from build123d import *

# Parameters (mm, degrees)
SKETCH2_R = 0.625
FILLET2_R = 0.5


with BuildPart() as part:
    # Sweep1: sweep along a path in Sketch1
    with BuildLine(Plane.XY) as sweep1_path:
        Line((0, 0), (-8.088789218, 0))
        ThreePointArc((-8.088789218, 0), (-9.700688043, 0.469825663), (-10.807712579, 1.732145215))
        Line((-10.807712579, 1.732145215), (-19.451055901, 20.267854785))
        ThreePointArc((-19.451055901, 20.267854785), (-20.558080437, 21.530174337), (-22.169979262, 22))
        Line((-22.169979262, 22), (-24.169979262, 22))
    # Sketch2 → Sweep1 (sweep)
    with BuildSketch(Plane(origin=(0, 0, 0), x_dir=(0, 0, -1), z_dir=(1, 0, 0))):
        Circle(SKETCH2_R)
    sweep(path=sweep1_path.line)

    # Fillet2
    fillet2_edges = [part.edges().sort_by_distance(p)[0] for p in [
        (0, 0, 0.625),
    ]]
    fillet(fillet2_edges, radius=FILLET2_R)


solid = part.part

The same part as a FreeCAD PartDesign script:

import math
import FreeCAD as App
import Part
import Sketcher

V = App.Vector
Q = App.Units.Quantity


def edges_at(feature, points):
    """Names of the edges that pass closest to the given points."""
    edges = feature.Shape.Edges
    near = lambda p: min(range(len(edges)), key=lambda i: edges[i].distToShape(Part.Vertex(*p))[0])
    return sorted({f"Edge{near(p) + 1}" for p in points})

doc = App.newDocument("Part")
params = doc.addObject("Spreadsheet::Sheet", "Params")
for row, (alias, value) in enumerate([
    ("sketch1_diameter", "1.25 mm"),
    ("sketch2_radius", "3 mm"),
    ("sketch2_width", "2 mm"),
    ("fillet_radius", "0.5 mm"),
], start=1):
    params.set(f"A{row}", alias)
    params.set(f"B{row}", "=" + value)
    params.setAlias(f"B{row}", alias)

body = doc.addObject("PartDesign::Body", "Body")

# Sketch on YZ plane
sketch1 = body.newObject("Sketcher::SketchObject", "Sketch")
sketch1.AttachmentSupport = (doc.getObject("YZ_Plane"), [""])
sketch1.MapMode = "FlatFace"
sketch1.addGeometry(Part.Circle(V(0, 0, 0), V(0, 0, 1), 0.6), False)
sketch1.addConstraint(Sketcher.Constraint("Coincident", 0, 3, -1, 1))
sketch1.addConstraint(Sketcher.Constraint("Diameter", 0, 1.25))
sketch1.setExpression("Constraints[1]", "Params.sketch1_diameter")

# Sketch on XY plane
sketch2 = body.newObject("Sketcher::SketchObject", "Sketch001")
sketch2.AttachmentSupport = (doc.getObject("XY_Plane"), [""])
sketch2.MapMode = "FlatFace"
sketch2.addGeometry(Part.LineSegment(V(0, 0, 0), V(-8.1, 0, 0)), False)
sketch2.addGeometry(Part.ArcOfCircle(Part.Circle(V(-8.1, 3, 0), V(0, 0, 1), 3), math.radians(-155), math.radians(-90)), False)
sketch2.addGeometry(Part.LineSegment(V(-10.8, 1.7, 0), V(-19.5, 20.3, 0)), False)
sketch2.addGeometry(Part.ArcOfCircle(Part.Circle(V(-22.2, 19, 0), V(0, 0, 1), 3), math.radians(25), math.radians(90)), False)
sketch2.addGeometry(Part.LineSegment(V(-22.2, 22, 0), V(-24.2, 22, 0)), False)
sketch2.addConstraint(Sketcher.Constraint("Tangent", 0, 2, 1, 2))
sketch2.addConstraint(Sketcher.Constraint("Tangent", 1, 1, 2, 1))
sketch2.addConstraint(Sketcher.Constraint("Tangent", 2, 2, 3, 1))
sketch2.addConstraint(Sketcher.Constraint("Tangent", 3, 2, 4, 1))
sketch2.addConstraint(Sketcher.Constraint("Horizontal", 0))
sketch2.addConstraint(Sketcher.Constraint("Horizontal", 4))
sketch2.addConstraint(Sketcher.Constraint("Coincident", 0, 1, -1, 1))
sketch2.addConstraint(Sketcher.Constraint("Equal", 1, 3))
sketch2.addConstraint(Sketcher.Constraint("Radius", 1, 3.0))
sketch2.addConstraint(Sketcher.Constraint("DistanceX", 4, 2, 4, 1, 2.0))
sketch2.addConstraint(Sketcher.Constraint("Angle", 2, Q("115 deg")))
sketch2.addConstraint(Sketcher.Constraint("DistanceY", -1, 1, 3, 3, 19.0))
sketch2.addConstraint(Sketcher.Constraint("DistanceX", 0, 2, 0, 1, 8.088789))
sketch2.setExpression("Constraints[8]", "Params.sketch2_radius")
sketch2.setExpression("Constraints[9]", "Params.sketch2_width")
doc.recompute()

additivepipe = body.newObject("PartDesign::AdditivePipe", "AdditivePipe")
additivepipe.Profile = sketch1
additivepipe.Spine = (sketch2, ["Edge1", "Edge2", "Edge3", "Edge4", "Edge5"])
doc.recompute()

fillet = body.newObject("PartDesign::Fillet", "Fillet")
fillet.Base = (additivepipe, edges_at(additivepipe, [(0, 0, 0.625)]))
fillet.setExpression("Radius", "Params.fillet_radius")

doc.recompute()
